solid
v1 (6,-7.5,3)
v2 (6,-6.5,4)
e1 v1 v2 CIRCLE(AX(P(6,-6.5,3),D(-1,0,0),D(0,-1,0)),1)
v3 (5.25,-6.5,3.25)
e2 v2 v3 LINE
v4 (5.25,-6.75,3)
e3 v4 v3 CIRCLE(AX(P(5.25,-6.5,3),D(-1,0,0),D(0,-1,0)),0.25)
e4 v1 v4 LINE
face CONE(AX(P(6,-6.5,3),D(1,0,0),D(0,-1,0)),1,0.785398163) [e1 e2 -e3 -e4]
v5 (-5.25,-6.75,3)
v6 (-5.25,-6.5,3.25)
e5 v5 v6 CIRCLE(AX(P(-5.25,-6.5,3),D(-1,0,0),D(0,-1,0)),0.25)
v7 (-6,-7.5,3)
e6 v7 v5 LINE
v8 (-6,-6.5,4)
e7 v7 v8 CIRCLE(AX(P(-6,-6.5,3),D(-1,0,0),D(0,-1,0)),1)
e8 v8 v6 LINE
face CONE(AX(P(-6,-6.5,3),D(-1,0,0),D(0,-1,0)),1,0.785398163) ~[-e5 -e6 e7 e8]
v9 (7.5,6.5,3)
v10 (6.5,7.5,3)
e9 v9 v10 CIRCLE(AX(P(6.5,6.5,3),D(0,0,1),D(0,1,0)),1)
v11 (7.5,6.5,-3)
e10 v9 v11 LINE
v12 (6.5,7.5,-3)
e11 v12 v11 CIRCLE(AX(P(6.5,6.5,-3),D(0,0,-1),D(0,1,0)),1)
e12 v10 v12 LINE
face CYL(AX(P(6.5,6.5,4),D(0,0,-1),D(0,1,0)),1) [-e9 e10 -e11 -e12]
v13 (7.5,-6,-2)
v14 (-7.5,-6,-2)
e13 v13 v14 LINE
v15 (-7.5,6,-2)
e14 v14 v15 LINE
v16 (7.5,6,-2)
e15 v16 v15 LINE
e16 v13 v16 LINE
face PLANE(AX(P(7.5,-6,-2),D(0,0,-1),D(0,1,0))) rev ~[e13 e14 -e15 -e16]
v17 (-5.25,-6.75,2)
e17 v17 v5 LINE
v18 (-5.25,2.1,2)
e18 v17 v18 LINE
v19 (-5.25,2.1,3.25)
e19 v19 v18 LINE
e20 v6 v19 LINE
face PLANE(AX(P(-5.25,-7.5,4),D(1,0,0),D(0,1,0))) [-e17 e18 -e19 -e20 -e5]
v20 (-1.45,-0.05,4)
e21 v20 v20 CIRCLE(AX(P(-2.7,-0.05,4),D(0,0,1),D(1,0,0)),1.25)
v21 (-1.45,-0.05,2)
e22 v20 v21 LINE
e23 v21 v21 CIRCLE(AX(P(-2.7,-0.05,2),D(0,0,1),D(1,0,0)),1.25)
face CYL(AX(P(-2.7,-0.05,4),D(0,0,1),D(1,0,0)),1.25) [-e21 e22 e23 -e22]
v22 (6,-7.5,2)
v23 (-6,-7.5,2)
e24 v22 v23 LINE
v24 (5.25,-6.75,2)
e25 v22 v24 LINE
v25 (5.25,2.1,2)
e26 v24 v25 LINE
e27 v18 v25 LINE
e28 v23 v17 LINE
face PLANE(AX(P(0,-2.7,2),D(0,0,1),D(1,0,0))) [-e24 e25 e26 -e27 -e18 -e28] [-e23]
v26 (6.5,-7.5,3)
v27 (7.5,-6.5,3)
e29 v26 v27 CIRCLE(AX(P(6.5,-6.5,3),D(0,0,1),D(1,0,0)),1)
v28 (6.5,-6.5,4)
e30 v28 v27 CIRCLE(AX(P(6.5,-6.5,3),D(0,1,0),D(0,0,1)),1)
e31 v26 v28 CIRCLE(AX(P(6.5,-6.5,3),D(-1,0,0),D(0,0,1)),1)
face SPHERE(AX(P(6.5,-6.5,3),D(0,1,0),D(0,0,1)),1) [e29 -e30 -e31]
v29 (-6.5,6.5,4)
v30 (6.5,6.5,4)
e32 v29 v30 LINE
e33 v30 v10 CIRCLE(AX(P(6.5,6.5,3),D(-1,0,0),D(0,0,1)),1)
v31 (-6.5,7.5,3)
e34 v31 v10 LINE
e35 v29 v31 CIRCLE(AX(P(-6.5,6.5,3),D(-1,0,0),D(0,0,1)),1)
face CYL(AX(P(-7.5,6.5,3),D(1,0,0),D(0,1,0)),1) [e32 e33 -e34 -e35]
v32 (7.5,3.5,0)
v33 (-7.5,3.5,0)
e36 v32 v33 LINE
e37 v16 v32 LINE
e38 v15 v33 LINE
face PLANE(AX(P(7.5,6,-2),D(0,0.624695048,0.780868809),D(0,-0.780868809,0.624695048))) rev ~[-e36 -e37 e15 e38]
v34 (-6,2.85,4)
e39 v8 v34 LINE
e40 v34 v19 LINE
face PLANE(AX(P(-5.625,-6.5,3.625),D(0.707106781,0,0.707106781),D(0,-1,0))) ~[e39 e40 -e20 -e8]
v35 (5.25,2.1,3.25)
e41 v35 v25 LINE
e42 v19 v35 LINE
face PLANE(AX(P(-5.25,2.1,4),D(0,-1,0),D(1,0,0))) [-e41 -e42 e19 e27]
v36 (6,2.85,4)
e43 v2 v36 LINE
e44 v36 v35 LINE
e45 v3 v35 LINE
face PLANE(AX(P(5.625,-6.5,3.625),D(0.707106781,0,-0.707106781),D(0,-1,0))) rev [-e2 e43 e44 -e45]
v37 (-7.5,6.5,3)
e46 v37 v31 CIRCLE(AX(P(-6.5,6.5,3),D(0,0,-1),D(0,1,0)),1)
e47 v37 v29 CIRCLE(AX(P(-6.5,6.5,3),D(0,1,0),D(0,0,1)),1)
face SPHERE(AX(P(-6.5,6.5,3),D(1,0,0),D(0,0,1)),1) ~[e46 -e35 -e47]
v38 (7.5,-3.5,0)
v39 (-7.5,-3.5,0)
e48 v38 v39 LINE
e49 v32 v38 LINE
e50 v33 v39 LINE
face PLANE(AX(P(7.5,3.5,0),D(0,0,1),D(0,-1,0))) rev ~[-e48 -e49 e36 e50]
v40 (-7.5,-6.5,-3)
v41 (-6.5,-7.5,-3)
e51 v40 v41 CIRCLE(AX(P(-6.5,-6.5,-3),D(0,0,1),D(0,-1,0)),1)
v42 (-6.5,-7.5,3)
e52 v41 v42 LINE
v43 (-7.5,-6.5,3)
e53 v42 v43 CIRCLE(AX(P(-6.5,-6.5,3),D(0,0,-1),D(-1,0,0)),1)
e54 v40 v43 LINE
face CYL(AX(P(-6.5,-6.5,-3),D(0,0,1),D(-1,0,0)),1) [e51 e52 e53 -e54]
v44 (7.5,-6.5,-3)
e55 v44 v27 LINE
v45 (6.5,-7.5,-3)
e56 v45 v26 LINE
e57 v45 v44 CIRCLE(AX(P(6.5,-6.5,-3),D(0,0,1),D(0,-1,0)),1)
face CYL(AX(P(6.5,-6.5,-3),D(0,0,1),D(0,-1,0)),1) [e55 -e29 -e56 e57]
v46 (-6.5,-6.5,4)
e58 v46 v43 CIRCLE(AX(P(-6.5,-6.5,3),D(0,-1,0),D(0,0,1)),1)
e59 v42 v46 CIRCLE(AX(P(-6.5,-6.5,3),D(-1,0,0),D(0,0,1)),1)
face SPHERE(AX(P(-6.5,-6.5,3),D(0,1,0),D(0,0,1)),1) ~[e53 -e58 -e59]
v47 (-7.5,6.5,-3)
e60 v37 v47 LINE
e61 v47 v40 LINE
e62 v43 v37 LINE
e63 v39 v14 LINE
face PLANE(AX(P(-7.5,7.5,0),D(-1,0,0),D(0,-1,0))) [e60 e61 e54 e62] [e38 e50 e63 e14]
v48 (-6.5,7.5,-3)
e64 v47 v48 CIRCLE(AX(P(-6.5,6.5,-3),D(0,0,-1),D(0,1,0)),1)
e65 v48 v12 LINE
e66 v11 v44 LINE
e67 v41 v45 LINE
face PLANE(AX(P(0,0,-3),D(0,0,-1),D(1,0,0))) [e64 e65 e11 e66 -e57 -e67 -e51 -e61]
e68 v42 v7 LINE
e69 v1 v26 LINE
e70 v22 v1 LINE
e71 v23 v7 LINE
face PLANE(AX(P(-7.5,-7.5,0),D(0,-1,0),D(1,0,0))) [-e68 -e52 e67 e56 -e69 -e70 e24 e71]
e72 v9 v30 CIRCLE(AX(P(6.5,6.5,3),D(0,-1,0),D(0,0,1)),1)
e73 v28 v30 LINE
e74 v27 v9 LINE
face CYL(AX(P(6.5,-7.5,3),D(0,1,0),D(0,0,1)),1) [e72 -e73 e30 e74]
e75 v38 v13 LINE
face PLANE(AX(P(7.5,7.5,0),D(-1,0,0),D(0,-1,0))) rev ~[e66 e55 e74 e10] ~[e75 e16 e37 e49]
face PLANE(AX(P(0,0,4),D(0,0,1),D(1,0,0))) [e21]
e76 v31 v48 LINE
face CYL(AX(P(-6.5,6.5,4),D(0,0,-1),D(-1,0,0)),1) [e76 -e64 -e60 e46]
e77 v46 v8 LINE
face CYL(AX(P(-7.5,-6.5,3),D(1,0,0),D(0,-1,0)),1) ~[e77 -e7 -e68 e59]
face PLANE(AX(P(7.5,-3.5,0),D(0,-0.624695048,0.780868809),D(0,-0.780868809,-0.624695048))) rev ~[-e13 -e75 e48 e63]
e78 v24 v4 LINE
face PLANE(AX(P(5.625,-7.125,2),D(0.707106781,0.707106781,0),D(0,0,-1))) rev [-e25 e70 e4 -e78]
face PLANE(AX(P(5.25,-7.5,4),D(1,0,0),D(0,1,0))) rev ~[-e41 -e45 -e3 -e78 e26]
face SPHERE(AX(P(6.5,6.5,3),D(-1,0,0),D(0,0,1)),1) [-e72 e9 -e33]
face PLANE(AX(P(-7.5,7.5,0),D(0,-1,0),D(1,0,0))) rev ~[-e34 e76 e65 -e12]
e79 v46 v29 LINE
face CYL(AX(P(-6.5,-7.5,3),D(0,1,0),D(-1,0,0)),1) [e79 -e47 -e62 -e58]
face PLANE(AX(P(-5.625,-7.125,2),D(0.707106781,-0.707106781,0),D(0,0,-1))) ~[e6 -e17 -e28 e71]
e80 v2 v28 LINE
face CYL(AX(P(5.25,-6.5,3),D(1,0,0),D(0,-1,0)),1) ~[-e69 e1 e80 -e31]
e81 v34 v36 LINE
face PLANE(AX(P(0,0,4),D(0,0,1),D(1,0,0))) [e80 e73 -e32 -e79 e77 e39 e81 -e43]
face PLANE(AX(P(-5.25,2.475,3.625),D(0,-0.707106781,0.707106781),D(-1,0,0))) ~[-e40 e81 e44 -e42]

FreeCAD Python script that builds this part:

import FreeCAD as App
import Part
import Sketcher


def edges_at(feature, points):
    """Names of the edges that pass closest to the given points."""
    edges = feature.Shape.Edges
    near = lambda p: min(range(len(edges)), key=lambda i: edges[i].distToShape(Part.Vertex(*p))[0])
    return sorted({f"Edge{near(p) + 1}" for p in points})


def add_polygon(sketch, points):
    """Adds a closed chain of lines whose ends are joined by coincident constraints."""
    first, n = sketch.GeometryCount, len(points)
    for a, b in zip(points, points[1:] + points[:1]):
        sketch.addGeometry(Part.LineSegment(App.Vector(*a, 0), App.Vector(*b, 0)), False)
    for i in range(n):
        sketch.addConstraint(Sketcher.Constraint("Coincident", first + i, 2, first + (i + 1) % n, 1))

doc = App.newDocument("Part")
body = doc.addObject("PartDesign::Body", "Body")

# Sketch on XY plane
sketch1 = doc.addObject("Sketcher::SketchObject", "Sketch")
body.addObject(sketch1)
sketch1.AttachmentSupport = (doc.XY_Plane, [""])
sketch1.MapMode = "FlatFace"
add_polygon(sketch1, [(-7.5, 7.5), (-7.5, -7.5), (7.5, -7.5), (7.5, 7.5)])  # lines 0-3
sketch1.addConstraint(Sketcher.Constraint("Vertical", 0))
sketch1.addConstraint(Sketcher.Constraint("Horizontal", 1))
sketch1.addConstraint(Sketcher.Constraint("Vertical", 2))
sketch1.addConstraint(Sketcher.Constraint("Horizontal", 3))
sketch1.addConstraint(Sketcher.Constraint("Symmetric", 0, 2, 2, 2, -1, 1))
sketch1.addConstraint(Sketcher.Constraint("Equal", 3, 0))
sketch1.addConstraint(Sketcher.Constraint("DistanceX", 1, 1, 1, 2, 15.0))
pad1 = doc.addObject("PartDesign::Pad", "Pad")
body.addObject(pad1)
pad1.Profile = sketch1
pad1.Length = 4

# Sketch on XY plane
sketch2 = doc.addObject("Sketcher::SketchObject", "Sketch001")
body.addObject(sketch2)
sketch2.AttachmentSupport = (doc.XY_Plane, [""])
sketch2.MapMode = "FlatFace"
sketch2.AttachmentOffset = App.Placement(App.Vector(0, 0, 4), App.Rotation())
add_polygon(sketch2, [(-5.25, 2.1), (-5.25, -7.5), (5.25, -7.5), (5.25, 2.1)])  # lines 0-3
sketch2.addGeometry(Part.Circle(App.Vector(-2.7, -0.05, 0), App.Vector(0, 0, 1), 1.25), False)  # 4
sketch2.addConstraint(Sketcher.Constraint("Vertical", 0))
sketch2.addConstraint(Sketcher.Constraint("Horizontal", 1))
sketch2.addConstraint(Sketcher.Constraint("Vertical", 2))
sketch2.addConstraint(Sketcher.Constraint("Horizontal", 3))
sketch2.addConstraint(Sketcher.Constraint("Diameter", 4, 2.5))
sketch2.addConstraint(Sketcher.Constraint("DistanceX", 1, 1, 1, 2, 10.5))
sketch2.addConstraint(Sketcher.Constraint("DistanceY", 0, 2, 0, 1, 9.6))
sketch2.addConstraint(Sketcher.Constraint("DistanceX", 4, 3, -1, 1, 2.7))
sketch2.addConstraint(Sketcher.Constraint("DistanceY", 0, 2, -1, 1, 7.5))
sketch2.addConstraint(Sketcher.Constraint("DistanceY", 4, 3, -1, 1, 0.05))
sketch2.addConstraint(Sketcher.Constraint("DistanceX", 0, 2, -1, 1, 5.25))
pocket1 = doc.addObject("PartDesign::Pocket", "Pocket")
body.addObject(pocket1)
pocket1.Profile = sketch2
pocket1.Length = 2

# Sketch on XY plane
sketch3 = doc.addObject("Sketcher::SketchObject", "Sketch002")
body.addObject(sketch3)
sketch3.AttachmentSupport = (doc.XY_Plane, [""])
sketch3.MapMode = "FlatFace"
add_polygon(sketch3, [(-7.5, -7.5), (-7.5, 7.5), (7.5, 7.5), (7.5, -7.5)])  # lines 0-3
sketch3.addConstraint(Sketcher.Constraint("Vertical", 0))
sketch3.addConstraint(Sketcher.Constraint("Horizontal", 1))
sketch3.addConstraint(Sketcher.Constraint("Vertical", 2))
sketch3.addConstraint(Sketcher.Constraint("Horizontal", 3))
sketch3.addConstraint(Sketcher.Constraint("Symmetric", 0, 2, 2, 2, -1, 1))
sketch3.addConstraint(Sketcher.Constraint("Equal", 3, 0))
sketch3.addConstraint(Sketcher.Constraint("DistanceX", 1, 1, 1, 2, 15.0))
pad2 = doc.addObject("PartDesign::Pad", "Pad001")
body.addObject(pad2)
pad2.Profile = sketch3
pad2.Length = 3
pad2.Reversed = True

# Sketch on YZ plane
sketch4 = doc.addObject("Sketcher::SketchObject", "Sketch003")
body.addObject(sketch4)
sketch4.AttachmentSupport = (doc.YZ_Plane, [""])
sketch4.MapMode = "FlatFace"
sketch4.AttachmentOffset = App.Placement(App.Vector(0, 0, 7.5), App.Rotation())
add_polygon(sketch4, [(-3.5, 0), (-6, -2), (6, -2), (3.5, 0)])  # lines 0-3
sketch4.addConstraint(Sketcher.Constraint("Horizontal", 1))
sketch4.addConstraint(Sketcher.Constraint("Horizontal", 3))
sketch4.addConstraint(Sketcher.Constraint("Symmetric", 2, 2, 3, 2, -1, 1))
sketch4.addConstraint(Sketcher.Constraint("Equal", 0, 2))
sketch4.addConstraint(Sketcher.Constraint("DistanceX", 1, 1, 1, 2, 12.0))
sketch4.addConstraint(Sketcher.Constraint("DistanceX", 3, 2, 3, 1, 7.0))
sketch4.addConstraint(Sketcher.Constraint("DistanceY", 0, 2, -1, 1, 2.0))
pocket2 = doc.addObject("PartDesign::Pocket", "Pocket001")
body.addObject(pocket2)
pocket2.Profile = sketch4
pocket2.Type = "ThroughAll"
doc.recompute()

fillet = doc.addObject("PartDesign::Fillet", "Fillet")
body.addObject(fillet)
fillet.Base = (pocket2, edges_at(pocket2, [
    (0, 7.5, 4),
    (-7.5, 0, 4),
    (7.5, 0, 4),
    (-6.375, -7.5, 4),
    (6.375, -7.5, 4),
    (-7.5, 7.5, 0.5),
    (-7.5, -7.5, 0.5),
    (7.5, -7.5, 0.5),
    (7.5, 7.5, 0.5),
]))
fillet.Radius = 1
doc.recompute()

chamfer = doc.addObject("PartDesign::Chamfer", "Chamfer")
body.addObject(chamfer)
chamfer.Base = (fillet, edges_at(fillet, [(5.25, -2.2, 4), (0, 2.1, 4), (-5.25, -2.2, 4)]))
chamfer.Size = 0.75

doc.recompute()
